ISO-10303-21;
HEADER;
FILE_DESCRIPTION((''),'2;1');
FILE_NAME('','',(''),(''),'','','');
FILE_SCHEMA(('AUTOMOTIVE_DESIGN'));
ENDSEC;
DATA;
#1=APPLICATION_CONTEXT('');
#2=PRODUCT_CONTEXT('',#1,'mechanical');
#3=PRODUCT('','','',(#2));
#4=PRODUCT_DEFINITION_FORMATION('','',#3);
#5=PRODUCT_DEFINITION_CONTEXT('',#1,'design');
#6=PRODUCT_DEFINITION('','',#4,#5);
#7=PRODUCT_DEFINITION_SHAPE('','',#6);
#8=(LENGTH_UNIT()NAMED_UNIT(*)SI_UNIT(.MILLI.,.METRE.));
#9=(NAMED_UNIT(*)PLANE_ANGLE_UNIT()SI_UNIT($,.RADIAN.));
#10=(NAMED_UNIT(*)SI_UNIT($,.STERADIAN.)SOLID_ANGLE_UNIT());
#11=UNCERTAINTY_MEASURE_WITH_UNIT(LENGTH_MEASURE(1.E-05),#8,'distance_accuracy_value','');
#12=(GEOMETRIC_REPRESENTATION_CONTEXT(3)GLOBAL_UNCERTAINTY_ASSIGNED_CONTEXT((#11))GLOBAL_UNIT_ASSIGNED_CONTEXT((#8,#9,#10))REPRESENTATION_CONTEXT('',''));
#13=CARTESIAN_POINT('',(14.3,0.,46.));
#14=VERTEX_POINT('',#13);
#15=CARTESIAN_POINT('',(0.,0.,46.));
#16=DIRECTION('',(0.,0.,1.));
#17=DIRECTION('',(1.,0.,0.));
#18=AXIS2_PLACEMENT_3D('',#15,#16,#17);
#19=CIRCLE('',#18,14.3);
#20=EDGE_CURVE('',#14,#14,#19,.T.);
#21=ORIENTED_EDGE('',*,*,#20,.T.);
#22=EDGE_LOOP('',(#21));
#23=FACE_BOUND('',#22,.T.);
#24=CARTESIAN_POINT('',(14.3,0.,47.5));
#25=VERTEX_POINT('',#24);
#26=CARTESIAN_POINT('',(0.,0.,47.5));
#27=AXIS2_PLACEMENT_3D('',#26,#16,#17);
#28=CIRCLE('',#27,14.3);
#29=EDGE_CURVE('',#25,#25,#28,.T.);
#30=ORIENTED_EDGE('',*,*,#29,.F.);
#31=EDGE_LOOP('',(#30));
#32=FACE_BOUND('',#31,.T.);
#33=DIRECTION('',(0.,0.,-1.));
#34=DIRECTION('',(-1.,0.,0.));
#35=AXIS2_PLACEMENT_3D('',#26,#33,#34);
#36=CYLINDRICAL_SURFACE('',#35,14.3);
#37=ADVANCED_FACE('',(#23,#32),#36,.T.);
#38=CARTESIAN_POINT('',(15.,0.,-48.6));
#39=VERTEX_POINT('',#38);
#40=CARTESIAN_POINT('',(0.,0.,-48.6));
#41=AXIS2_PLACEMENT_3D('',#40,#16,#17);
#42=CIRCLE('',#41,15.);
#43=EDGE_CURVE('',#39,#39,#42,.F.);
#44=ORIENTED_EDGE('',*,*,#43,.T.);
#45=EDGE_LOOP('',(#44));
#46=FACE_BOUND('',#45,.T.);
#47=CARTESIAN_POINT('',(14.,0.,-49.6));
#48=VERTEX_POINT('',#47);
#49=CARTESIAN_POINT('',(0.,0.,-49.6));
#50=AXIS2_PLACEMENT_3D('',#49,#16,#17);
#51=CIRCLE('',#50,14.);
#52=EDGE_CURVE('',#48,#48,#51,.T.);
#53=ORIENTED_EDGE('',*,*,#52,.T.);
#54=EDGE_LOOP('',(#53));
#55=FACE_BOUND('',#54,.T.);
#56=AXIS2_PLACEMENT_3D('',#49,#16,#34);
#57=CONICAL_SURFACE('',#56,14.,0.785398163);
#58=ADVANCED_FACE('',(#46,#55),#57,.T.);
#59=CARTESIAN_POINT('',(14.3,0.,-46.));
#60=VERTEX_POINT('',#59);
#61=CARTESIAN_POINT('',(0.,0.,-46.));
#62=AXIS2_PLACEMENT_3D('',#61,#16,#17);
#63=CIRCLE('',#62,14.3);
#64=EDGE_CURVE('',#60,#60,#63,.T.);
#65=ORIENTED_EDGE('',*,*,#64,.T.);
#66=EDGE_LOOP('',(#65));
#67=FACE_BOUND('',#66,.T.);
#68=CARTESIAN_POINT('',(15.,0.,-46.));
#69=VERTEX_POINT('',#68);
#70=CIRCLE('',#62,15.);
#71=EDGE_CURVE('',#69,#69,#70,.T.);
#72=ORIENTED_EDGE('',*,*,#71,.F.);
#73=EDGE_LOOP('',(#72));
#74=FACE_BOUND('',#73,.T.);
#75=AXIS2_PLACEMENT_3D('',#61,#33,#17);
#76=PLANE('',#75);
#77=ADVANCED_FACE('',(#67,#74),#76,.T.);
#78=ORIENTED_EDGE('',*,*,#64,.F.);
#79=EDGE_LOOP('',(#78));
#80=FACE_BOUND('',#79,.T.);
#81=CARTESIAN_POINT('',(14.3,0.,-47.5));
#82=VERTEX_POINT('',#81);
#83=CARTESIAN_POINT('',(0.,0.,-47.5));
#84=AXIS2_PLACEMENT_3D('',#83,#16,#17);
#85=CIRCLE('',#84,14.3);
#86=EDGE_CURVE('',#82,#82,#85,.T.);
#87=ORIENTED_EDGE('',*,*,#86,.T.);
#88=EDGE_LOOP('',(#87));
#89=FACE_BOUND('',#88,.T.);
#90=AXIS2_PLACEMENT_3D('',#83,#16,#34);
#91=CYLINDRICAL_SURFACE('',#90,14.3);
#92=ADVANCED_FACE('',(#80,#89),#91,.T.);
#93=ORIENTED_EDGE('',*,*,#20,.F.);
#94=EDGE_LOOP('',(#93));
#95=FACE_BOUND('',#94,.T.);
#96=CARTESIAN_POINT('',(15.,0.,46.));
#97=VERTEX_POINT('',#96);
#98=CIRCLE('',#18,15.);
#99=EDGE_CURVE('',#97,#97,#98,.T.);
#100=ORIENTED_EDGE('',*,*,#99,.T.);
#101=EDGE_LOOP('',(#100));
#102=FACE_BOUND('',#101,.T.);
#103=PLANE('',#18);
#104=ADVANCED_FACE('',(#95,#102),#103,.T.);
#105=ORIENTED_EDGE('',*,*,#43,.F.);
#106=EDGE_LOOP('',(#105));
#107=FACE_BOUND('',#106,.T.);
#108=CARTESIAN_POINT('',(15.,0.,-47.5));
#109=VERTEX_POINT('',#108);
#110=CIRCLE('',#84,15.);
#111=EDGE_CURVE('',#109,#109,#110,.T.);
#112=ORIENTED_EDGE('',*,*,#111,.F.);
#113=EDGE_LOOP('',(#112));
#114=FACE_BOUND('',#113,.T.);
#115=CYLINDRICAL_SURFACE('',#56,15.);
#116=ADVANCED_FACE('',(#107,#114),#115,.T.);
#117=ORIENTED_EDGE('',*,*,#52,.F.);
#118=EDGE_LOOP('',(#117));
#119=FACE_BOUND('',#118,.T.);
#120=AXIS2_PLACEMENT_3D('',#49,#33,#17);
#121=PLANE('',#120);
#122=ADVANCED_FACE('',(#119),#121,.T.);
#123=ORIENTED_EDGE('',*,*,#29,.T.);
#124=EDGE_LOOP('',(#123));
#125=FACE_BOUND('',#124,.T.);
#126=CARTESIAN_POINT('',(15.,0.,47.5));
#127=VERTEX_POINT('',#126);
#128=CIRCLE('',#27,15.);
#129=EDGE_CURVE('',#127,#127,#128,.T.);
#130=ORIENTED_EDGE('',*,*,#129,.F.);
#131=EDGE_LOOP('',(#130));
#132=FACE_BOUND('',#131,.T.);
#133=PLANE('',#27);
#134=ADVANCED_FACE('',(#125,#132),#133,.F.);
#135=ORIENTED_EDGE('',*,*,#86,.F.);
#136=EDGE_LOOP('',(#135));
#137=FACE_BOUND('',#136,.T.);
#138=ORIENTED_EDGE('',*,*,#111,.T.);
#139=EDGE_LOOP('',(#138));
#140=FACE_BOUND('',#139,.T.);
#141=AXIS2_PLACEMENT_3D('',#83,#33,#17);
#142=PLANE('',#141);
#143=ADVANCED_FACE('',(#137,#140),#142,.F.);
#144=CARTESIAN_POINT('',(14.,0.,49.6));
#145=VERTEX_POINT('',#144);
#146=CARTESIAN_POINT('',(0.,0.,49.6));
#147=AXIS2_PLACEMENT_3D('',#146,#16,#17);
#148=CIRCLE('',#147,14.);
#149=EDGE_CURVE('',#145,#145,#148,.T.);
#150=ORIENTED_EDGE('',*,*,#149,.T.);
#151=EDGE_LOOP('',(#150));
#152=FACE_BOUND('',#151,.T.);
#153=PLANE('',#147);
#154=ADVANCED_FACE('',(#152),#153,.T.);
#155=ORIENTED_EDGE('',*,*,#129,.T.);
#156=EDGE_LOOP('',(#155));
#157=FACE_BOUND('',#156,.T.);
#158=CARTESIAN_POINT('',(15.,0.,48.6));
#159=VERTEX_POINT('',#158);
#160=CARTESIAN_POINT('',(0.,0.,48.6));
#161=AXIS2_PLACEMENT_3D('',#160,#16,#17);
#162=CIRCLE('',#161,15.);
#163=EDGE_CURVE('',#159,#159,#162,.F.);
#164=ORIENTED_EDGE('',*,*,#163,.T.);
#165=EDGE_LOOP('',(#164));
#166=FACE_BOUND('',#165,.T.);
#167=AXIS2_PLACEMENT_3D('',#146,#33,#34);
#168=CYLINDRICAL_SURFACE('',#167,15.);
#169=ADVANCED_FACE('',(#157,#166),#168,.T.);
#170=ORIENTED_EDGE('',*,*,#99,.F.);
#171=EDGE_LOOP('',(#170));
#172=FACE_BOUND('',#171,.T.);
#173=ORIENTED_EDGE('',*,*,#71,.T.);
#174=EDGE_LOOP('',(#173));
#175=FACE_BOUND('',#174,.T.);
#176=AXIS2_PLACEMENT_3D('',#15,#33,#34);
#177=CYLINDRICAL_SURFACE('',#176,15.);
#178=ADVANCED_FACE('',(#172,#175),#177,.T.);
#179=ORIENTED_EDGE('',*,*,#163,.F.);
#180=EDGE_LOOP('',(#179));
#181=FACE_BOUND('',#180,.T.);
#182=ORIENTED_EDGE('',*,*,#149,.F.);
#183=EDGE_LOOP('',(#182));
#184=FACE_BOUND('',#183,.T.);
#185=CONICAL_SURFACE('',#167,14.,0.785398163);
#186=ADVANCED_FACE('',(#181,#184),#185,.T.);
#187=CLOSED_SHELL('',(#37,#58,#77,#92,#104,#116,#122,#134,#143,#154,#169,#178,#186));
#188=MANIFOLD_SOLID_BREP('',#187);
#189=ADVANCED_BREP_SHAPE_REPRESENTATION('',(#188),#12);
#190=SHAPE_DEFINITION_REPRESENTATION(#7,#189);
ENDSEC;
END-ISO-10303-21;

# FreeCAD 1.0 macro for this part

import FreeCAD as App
import Part
import Sketcher

V = App.Vector
Q = App.Units.Quantity


def edges_at(feature, points):
    """Names of the edges that pass closest to the given points."""
    edges = feature.Shape.Edges
    near = lambda p: min(range(len(edges)), key=lambda i: edges[i].distToShape(Part.Vertex(*p))[0])
    return sorted({f"Edge{near(p) + 1}" for p in points})

doc = App.newDocument("Part")
body = doc.addObject("PartDesign::Body", "Body")

sketch1 = body.newObject("Sketcher::SketchObject", "Sketch")
sketch1.AttachmentSupport = (doc.getObject("XY_Plane"), [""])
sketch1.MapMode = "FlatFace"
sketch1.addGeometry(Part.Circle(V(0, 0, 0), V(0, 0, 1), 15), False)
sketch1.addConstraint([
    Sketcher.Constraint("Coincident", 0, 3, -1, 1),
    Sketcher.Constraint("Diameter", 0, Q("30 mm")),
])
pad1 = body.newObject("PartDesign::Pad", "Pad")
pad1.Profile = sketch1
pad1.Length = 46

sketch2 = body.newObject("Sketcher::SketchObject", "Sketch001")
sketch2.AttachmentSupport = (doc.getObject("XY_Plane"), [""])
sketch2.MapMode = "FlatFace"
sketch2.AttachmentOffset = App.Placement(V(0, 0, 46), App.Rotation())
sketch2.addGeometry(Part.Circle(V(0, 0, 0), V(0, 0, 1), 14), False)
sketch2.addConstraint([
    Sketcher.Constraint("Coincident", 0, 3, -1, 1),
    Sketcher.Constraint("Diameter", 0, Q("28.6 mm")),
])
pad2 = body.newObject("PartDesign::Pad", "Pad001")
pad2.Profile = sketch2
pad2.Length = 1.5

sketch3 = body.newObject("Sketcher::SketchObject", "Sketch002")
sketch3.AttachmentSupport = (doc.getObject("XY_Plane"), [""])
sketch3.MapMode = "FlatFace"
sketch3.AttachmentOffset = App.Placement(V(0, 0, 47.5), App.Rotation())
sketch3.addGeometry(Part.Circle(V(0, 0, 0), V(0, 0, 1), 15), False)
sketch3.addConstraint([
    Sketcher.Constraint("Coincident", 0, 3, -1, 1),
    Sketcher.Constraint("Diameter", 0, Q("30 mm")),
])
pad3 = body.newObject("PartDesign::Pad", "Pad002")
pad3.Profile = sketch3
pad3.Length = 2.1
doc.recompute()

chamfer = body.newObject("PartDesign::Chamfer", "Chamfer")
chamfer.Base = (pad3, edges_at(pad3, [(-15, 0, 49.6)]))
chamfer.Size = 1
body2 = doc.addObject("PartDesign::Body", "Body001")
doc.recompute()

body2.BaseFeature = body
doc.recompute()

mirroring = doc.addObject("Part::Mirroring", "Mirroring")
mirroring.Source = body
mirroring.Base = V(0, 0, 0)
mirroring.Normal = V(0, 0, -1)
body3 = doc.addObject("PartDesign::Body", "Body002")
body3.BaseFeature = mirroring
boolean = body2.newObject("PartDesign::Boolean", "Boolean")
boolean.Type = "Fuse"
boolean.addObjects([body3])
doc.recompute()
mirroring.Visibility = False

doc.recompute()
